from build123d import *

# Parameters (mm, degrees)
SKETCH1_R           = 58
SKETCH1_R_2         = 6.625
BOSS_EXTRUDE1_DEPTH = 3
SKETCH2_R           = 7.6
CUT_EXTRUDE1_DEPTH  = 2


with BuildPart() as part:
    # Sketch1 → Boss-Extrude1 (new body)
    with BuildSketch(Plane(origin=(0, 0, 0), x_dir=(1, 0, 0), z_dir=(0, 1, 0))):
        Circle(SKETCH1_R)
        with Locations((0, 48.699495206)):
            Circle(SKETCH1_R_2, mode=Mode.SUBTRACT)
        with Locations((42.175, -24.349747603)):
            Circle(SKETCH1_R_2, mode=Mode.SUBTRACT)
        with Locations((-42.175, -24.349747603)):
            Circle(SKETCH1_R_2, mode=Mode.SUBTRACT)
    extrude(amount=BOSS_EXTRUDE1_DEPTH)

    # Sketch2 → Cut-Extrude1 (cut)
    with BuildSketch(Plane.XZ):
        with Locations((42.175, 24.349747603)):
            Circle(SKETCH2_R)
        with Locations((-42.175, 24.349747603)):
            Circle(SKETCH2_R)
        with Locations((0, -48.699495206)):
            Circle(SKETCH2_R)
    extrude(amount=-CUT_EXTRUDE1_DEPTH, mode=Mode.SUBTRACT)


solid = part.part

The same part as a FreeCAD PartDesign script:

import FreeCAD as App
import Part
import Sketcher
Q = App.Units.Quantity

doc = App.newDocument("Part")
body = doc.addObject("PartDesign::Body", "Body")

# Sketch on XZ plane
sketch1 = body.newObject("Sketcher::SketchObject", "Sketch")
sketch1.AttachmentSupport = (doc.getObject("XZ_Plane"), [""])
sketch1.MapMode = "FlatFace"
sketch1.addGeometry([
    Part.Circle(App.Vector(0, 0, 0), App.Vector(0, 0, 1), 58),
    Part.Circle(App.Vector(-42.175, 24.349748, 0), App.Vector(0, 0, 1), 6.625),
    Part.Circle(App.Vector(42.175, 24.349748, 0), App.Vector(0, 0, 1), 6.625),
    Part.Circle(App.Vector(0, -48.699495, 0), App.Vector(0, 0, 1), 6.625),
], False)
sketch1.addConstraint([
    Sketcher.Constraint("Coincident", 0, 3, -1, 1),
    Sketcher.Constraint("Equal", 1, 2),
    Sketcher.Constraint("Equal", 2, 3),
    Sketcher.Constraint("Symmetric", 1, 3, 2, 3, -2),
    Sketcher.Constraint("PointOnObject", 3, 3, -2),
    Sketcher.Constraint("Diameter", 0, Q("116 mm")),
    Sketcher.Constraint("Diameter", 1, Q("13.25 mm")),
    Sketcher.Constraint("DistanceX", 1, 3, 2, 3, Q("84.35 mm")),
    Sketcher.Constraint("DistanceY", -1, 1, 1, 3, Q("24.349748 mm")),
    Sketcher.Constraint("DistanceY", 3, 3, -1, 1, Q("48.699495 mm")),
])
pad1 = body.newObject("PartDesign::Pad", "Pad")
pad1.Profile = sketch1
pad1.Length = 3
pad1.Reversed = True

# Sketch on XZ plane
sketch2 = body.newObject("Sketcher::SketchObject", "Sketch001")
sketch2.AttachmentSupport = (doc.getObject("XZ_Plane"), [""])
sketch2.MapMode = "FlatFace"
sketch2.addGeometry([
    Part.Circle(App.Vector(42.175, 24.349748, 0), App.Vector(0, 0, 1), 7.6),
    Part.Circle(App.Vector(-42.175, 24.349748, 0), App.Vector(0, 0, 1), 7.6),
    Part.Circle(App.Vector(0, -48.699495, 0), App.Vector(0, 0, 1), 7.6),
], False)
sketch2.addConstraint([
    Sketcher.Constraint("Equal", 0, 1),
    Sketcher.Constraint("Equal", 1, 2),
    Sketcher.Constraint("Symmetric", 0, 3, 1, 3, -2),
    Sketcher.Constraint("PointOnObject", 2, 3, -2),
    Sketcher.Constraint("Diameter", 0, Q("15.2 mm")),
    Sketcher.Constraint("DistanceX", 1, 3, 0, 3, Q("84.35 mm")),
    Sketcher.Constraint("DistanceY", -1, 1, 0, 3, Q("24.349748 mm")),
    Sketcher.Constraint("DistanceY", 2, 3, -1, 1, Q("48.699495 mm")),
])
pocket1 = body.newObject("PartDesign::Pocket", "Pocket")
pocket1.Profile = sketch2
pocket1.Length = 2

doc.recompute()
